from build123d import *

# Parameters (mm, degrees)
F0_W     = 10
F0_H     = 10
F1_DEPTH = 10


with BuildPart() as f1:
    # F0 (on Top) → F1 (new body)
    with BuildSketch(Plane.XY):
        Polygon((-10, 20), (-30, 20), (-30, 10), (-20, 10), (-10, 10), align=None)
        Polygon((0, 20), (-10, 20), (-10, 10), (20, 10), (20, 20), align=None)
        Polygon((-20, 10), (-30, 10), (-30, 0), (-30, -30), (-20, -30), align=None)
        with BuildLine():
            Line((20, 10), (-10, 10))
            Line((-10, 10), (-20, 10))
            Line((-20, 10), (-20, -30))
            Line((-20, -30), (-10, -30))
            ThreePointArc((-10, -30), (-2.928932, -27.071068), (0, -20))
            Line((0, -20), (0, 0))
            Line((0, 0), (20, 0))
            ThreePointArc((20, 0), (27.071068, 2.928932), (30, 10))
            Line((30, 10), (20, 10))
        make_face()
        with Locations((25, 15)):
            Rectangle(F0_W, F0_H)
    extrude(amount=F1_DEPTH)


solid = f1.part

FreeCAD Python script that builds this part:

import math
import FreeCAD as App
import Part
import Sketcher

doc = App.newDocument("Part")
body = doc.addObject("PartDesign::Body", "Body")

# Sketch on XY plane
sketch1 = body.newObject("Sketcher::SketchObject", "Sketch")
sketch1.AttachmentSupport = (doc.getObject("XY_Plane"), [""])
sketch1.MapMode = "FlatFace"
sketch1.addGeometry(Part.LineSegment(App.Vector(-30, 20, 0), App.Vector(-30, -30, 0)), False)
sketch1.addGeometry(Part.LineSegment(App.Vector(-30, -30, 0), App.Vector(-10, -30, 0)), False)
sketch1.addGeometry(Part.ArcOfCircle(Part.Circle(App.Vector(-10, -20, 0), App.Vector(0, 0, 1), 10), math.radians(-90), math.radians(0)), False)
sketch1.addGeometry(Part.LineSegment(App.Vector(0, -20, 0), App.Vector(0, 0, 0)), False)
sketch1.addGeometry(Part.LineSegment(App.Vector(0, 0, 0), App.Vector(20, 0, 0)), False)
sketch1.addGeometry(Part.ArcOfCircle(Part.Circle(App.Vector(20, 10, 0), App.Vector(0, 0, 1), 10), math.radians(-90), math.radians(0)), False)
sketch1.addGeometry(Part.LineSegment(App.Vector(30, 10, 0), App.Vector(30, 20, 0)), False)
sketch1.addGeometry(Part.LineSegment(App.Vector(30, 20, 0), App.Vector(-30, 20, 0)), False)
sketch1.addConstraint(Sketcher.Constraint("Coincident", 0, 2, 1, 1))
sketch1.addConstraint(Sketcher.Constraint("Tangent", 1, 2, 2, 1))
sketch1.addConstraint(Sketcher.Constraint("Tangent", 2, 2, 3, 1))
sketch1.addConstraint(Sketcher.Constraint("Coincident", 3, 2, 4, 1))
sketch1.addConstraint(Sketcher.Constraint("Tangent", 4, 2, 5, 1))
sketch1.addConstraint(Sketcher.Constraint("Tangent", 5, 2, 6, 1))
sketch1.addConstraint(Sketcher.Constraint("Coincident", 6, 2, 7, 1))
sketch1.addConstraint(Sketcher.Constraint("Coincident", 7, 2, 0, 1))
sketch1.addConstraint(Sketcher.Constraint("Vertical", 0))
sketch1.addConstraint(Sketcher.Constraint("Horizontal", 1))
sketch1.addConstraint(Sketcher.Constraint("Vertical", 3))
sketch1.addConstraint(Sketcher.Constraint("Horizontal", 4))
sketch1.addConstraint(Sketcher.Constraint("Vertical", 6))
sketch1.addConstraint(Sketcher.Constraint("Horizontal", 7))
sketch1.addConstraint(Sketcher.Constraint("Coincident", 3, 2, -1, 1))
sketch1.addConstraint(Sketcher.Constraint("Equal", 2, 5))
sketch1.addConstraint(Sketcher.Constraint("Equal", 1, 4))
sketch1.addConstraint(Sketcher.Constraint("Equal", 4, 3))
sketch1.addConstraint(Sketcher.Constraint("Radius", 2, 9.999999))
sketch1.addConstraint(Sketcher.Constraint("DistanceX", 1, 1, 1, 2, 20.0))
sketch1.addConstraint(Sketcher.Constraint("DistanceY", 0, 2, 0, 1, 50.0))
pad1 = body.newObject("PartDesign::Pad", "Pad")
pad1.Profile = sketch1
pad1.Length = 10

doc.recompute()
